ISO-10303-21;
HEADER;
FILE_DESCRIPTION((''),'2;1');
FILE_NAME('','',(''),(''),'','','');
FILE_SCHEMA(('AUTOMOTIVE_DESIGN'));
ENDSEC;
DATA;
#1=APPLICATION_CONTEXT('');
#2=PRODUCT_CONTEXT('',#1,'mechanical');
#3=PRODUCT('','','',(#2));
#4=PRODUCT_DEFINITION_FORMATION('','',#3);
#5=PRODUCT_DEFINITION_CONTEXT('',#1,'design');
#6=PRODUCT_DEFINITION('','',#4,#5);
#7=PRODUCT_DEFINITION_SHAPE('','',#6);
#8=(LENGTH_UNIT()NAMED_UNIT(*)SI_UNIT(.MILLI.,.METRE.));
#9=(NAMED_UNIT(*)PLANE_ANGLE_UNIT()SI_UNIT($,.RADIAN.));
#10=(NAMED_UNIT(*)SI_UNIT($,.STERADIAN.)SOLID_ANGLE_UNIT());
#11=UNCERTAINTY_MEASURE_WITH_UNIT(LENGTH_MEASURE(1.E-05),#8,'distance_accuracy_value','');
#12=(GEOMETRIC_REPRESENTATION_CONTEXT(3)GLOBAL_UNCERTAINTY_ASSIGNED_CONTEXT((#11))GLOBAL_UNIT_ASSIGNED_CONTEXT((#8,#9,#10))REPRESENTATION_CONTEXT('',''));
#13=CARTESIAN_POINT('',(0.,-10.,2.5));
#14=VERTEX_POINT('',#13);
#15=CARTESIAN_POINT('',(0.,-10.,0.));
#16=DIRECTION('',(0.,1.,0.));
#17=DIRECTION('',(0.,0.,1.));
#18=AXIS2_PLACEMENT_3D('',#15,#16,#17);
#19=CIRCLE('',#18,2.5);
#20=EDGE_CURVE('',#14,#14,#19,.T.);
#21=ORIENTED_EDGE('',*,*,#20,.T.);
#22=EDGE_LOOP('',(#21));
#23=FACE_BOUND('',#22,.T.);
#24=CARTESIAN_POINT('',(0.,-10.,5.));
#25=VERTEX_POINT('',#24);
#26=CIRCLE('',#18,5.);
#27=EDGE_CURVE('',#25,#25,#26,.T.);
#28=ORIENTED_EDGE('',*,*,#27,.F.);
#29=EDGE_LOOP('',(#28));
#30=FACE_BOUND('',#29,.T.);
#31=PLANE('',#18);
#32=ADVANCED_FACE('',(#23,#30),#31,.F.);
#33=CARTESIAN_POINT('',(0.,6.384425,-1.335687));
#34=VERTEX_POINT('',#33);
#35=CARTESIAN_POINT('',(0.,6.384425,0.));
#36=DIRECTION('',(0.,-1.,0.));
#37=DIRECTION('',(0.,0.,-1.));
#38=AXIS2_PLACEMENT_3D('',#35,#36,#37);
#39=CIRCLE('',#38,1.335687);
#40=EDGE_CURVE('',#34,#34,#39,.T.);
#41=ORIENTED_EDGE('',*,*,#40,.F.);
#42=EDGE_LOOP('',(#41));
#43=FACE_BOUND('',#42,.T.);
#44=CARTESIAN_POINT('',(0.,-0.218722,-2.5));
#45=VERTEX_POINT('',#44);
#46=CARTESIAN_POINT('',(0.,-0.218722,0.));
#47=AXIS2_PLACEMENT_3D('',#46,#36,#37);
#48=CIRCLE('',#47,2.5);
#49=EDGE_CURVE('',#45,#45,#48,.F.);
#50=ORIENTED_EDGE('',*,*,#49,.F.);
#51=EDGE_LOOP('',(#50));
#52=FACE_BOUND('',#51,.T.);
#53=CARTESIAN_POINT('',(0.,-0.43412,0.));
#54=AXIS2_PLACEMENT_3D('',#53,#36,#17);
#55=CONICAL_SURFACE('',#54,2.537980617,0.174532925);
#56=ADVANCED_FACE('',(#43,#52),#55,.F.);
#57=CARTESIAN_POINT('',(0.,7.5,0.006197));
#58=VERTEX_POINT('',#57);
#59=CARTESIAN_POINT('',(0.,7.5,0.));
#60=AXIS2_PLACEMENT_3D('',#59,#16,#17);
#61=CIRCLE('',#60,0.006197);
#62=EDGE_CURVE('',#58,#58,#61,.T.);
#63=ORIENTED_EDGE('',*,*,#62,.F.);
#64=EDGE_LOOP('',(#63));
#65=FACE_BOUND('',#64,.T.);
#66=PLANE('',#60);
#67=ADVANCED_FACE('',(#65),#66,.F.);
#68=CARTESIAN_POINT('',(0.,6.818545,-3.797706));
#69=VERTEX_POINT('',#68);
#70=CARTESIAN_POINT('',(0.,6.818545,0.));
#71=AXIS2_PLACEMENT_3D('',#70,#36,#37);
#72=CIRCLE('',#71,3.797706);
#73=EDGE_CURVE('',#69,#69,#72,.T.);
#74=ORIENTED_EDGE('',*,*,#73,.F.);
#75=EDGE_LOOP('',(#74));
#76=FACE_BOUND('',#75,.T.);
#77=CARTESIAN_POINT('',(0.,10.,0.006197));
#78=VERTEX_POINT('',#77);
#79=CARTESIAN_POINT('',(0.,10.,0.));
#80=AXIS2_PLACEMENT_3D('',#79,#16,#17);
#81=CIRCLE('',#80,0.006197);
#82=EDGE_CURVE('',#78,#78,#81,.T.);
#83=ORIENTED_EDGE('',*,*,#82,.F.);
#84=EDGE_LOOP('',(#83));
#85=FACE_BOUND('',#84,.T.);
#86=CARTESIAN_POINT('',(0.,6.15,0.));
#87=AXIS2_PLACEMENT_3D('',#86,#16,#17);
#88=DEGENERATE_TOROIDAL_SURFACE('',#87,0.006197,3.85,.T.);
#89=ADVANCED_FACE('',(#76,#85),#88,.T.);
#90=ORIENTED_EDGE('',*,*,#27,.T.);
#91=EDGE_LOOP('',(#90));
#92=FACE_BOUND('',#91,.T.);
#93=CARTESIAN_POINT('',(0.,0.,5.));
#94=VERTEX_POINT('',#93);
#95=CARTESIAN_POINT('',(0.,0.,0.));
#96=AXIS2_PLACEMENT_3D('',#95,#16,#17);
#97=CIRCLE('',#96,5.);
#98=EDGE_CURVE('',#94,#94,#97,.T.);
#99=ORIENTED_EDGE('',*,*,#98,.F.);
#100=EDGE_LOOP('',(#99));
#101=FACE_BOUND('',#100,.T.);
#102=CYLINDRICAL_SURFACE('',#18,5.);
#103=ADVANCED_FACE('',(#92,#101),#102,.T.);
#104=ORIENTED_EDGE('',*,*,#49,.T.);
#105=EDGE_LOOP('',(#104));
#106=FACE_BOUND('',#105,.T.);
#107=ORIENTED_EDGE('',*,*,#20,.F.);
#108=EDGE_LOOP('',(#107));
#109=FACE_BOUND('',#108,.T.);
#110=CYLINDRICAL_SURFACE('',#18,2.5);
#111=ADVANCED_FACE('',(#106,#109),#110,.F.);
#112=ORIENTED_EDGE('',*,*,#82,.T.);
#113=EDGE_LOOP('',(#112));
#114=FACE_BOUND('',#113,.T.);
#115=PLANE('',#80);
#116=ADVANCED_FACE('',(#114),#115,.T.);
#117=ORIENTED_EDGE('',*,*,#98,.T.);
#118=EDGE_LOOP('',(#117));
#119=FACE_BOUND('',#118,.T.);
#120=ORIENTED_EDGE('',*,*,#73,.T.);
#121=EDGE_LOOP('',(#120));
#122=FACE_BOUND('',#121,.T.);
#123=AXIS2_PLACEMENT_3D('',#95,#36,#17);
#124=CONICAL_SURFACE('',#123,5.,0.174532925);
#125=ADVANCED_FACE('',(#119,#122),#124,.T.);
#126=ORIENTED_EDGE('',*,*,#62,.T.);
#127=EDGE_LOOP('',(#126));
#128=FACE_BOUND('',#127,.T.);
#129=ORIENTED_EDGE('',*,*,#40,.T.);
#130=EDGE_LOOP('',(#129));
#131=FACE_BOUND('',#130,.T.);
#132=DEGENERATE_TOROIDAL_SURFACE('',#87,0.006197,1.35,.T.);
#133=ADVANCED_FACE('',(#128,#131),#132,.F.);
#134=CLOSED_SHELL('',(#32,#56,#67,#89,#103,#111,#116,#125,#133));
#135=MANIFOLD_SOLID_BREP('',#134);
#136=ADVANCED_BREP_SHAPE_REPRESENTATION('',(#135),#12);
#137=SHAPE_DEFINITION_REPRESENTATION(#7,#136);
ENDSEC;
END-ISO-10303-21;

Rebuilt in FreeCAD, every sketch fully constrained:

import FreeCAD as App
import Part
import Sketcher
from FreeCAD import Vector
Q = App.Units.Quantity


def edges_at(feature, points):
    """Names of the edges that pass closest to the given points."""
    edges = feature.Shape.Edges
    near = lambda p: min(range(len(edges)), key=lambda i: edges[i].distToShape(Part.Vertex(*p))[0])
    return sorted({f"Edge{near(p) + 1}" for p in points})


def faces_at(feature, points):
    """Names of the faces that lie closest to the given points."""
    faces = feature.Shape.Faces
    near = lambda p: min(range(len(faces)), key=lambda i: faces[i].distToShape(Part.Vertex(*p))[0])
    return sorted({f"Face{near(p) + 1}" for p in points})

doc = App.newDocument("Part")
body = doc.addObject("PartDesign::Body", "Body")

# Sketch on XZ plane
sketch1 = doc.addObject("Sketcher::SketchObject", "Sketch")
body.addObject(sketch1)
sketch1.AttachmentSupport = (doc.XZ_Plane, [""])
sketch1.MapMode = "FlatFace"
sketch1.addGeometry(Part.Circle(Vector(0, 0, 0), Vector(0, 0, 1), 5), False)
sketch1.addConstraint([
    Sketcher.Constraint("Coincident", 0, 3, -1, 1),
    Sketcher.Constraint("Diameter", 0, Q("10 mm")),
])
pad1 = doc.addObject("PartDesign::Pad", "Pad")
body.addObject(pad1)
pad1.Profile = sketch1
pad1.Length = 10

# Sketch on XZ plane
sketch2 = doc.addObject("Sketcher::SketchObject", "Sketch001")
body.addObject(sketch2)
sketch2.AttachmentSupport = (doc.XZ_Plane, [""])
sketch2.MapMode = "FlatFace"
sketch2.addGeometry(Part.Circle(Vector(0, 0, 0), Vector(0, 0, 1), 5), False)
sketch2.addConstraint([
    Sketcher.Constraint("Coincident", 0, 3, -1, 1),
    Sketcher.Constraint("Diameter", 0, Q("10 mm")),
])
pad2 = doc.addObject("PartDesign::Pad", "Pad001")
body.addObject(pad2)
pad2.Profile = sketch2
pad2.Length = 10
pad2.Reversed = True
pad2.TaperAngle = -10
doc.recompute()

fillet = doc.addObject("PartDesign::Fillet", "Fillet")
body.addObject(fillet)
fillet.Base = (pad2, edges_at(pad2, [(0, 10, -3.237)]))
fillet.Radius = 3.85
doc.recompute()

thickness = doc.addObject("PartDesign::Thickness", "Thickness")
body.addObject(thickness)
thickness.Base = (fillet, faces_at(fillet, [(0, -10, 0)]))
thickness.Value = 2.5
thickness.Reversed = True
thickness.Join = "Intersection"

doc.recompute()
